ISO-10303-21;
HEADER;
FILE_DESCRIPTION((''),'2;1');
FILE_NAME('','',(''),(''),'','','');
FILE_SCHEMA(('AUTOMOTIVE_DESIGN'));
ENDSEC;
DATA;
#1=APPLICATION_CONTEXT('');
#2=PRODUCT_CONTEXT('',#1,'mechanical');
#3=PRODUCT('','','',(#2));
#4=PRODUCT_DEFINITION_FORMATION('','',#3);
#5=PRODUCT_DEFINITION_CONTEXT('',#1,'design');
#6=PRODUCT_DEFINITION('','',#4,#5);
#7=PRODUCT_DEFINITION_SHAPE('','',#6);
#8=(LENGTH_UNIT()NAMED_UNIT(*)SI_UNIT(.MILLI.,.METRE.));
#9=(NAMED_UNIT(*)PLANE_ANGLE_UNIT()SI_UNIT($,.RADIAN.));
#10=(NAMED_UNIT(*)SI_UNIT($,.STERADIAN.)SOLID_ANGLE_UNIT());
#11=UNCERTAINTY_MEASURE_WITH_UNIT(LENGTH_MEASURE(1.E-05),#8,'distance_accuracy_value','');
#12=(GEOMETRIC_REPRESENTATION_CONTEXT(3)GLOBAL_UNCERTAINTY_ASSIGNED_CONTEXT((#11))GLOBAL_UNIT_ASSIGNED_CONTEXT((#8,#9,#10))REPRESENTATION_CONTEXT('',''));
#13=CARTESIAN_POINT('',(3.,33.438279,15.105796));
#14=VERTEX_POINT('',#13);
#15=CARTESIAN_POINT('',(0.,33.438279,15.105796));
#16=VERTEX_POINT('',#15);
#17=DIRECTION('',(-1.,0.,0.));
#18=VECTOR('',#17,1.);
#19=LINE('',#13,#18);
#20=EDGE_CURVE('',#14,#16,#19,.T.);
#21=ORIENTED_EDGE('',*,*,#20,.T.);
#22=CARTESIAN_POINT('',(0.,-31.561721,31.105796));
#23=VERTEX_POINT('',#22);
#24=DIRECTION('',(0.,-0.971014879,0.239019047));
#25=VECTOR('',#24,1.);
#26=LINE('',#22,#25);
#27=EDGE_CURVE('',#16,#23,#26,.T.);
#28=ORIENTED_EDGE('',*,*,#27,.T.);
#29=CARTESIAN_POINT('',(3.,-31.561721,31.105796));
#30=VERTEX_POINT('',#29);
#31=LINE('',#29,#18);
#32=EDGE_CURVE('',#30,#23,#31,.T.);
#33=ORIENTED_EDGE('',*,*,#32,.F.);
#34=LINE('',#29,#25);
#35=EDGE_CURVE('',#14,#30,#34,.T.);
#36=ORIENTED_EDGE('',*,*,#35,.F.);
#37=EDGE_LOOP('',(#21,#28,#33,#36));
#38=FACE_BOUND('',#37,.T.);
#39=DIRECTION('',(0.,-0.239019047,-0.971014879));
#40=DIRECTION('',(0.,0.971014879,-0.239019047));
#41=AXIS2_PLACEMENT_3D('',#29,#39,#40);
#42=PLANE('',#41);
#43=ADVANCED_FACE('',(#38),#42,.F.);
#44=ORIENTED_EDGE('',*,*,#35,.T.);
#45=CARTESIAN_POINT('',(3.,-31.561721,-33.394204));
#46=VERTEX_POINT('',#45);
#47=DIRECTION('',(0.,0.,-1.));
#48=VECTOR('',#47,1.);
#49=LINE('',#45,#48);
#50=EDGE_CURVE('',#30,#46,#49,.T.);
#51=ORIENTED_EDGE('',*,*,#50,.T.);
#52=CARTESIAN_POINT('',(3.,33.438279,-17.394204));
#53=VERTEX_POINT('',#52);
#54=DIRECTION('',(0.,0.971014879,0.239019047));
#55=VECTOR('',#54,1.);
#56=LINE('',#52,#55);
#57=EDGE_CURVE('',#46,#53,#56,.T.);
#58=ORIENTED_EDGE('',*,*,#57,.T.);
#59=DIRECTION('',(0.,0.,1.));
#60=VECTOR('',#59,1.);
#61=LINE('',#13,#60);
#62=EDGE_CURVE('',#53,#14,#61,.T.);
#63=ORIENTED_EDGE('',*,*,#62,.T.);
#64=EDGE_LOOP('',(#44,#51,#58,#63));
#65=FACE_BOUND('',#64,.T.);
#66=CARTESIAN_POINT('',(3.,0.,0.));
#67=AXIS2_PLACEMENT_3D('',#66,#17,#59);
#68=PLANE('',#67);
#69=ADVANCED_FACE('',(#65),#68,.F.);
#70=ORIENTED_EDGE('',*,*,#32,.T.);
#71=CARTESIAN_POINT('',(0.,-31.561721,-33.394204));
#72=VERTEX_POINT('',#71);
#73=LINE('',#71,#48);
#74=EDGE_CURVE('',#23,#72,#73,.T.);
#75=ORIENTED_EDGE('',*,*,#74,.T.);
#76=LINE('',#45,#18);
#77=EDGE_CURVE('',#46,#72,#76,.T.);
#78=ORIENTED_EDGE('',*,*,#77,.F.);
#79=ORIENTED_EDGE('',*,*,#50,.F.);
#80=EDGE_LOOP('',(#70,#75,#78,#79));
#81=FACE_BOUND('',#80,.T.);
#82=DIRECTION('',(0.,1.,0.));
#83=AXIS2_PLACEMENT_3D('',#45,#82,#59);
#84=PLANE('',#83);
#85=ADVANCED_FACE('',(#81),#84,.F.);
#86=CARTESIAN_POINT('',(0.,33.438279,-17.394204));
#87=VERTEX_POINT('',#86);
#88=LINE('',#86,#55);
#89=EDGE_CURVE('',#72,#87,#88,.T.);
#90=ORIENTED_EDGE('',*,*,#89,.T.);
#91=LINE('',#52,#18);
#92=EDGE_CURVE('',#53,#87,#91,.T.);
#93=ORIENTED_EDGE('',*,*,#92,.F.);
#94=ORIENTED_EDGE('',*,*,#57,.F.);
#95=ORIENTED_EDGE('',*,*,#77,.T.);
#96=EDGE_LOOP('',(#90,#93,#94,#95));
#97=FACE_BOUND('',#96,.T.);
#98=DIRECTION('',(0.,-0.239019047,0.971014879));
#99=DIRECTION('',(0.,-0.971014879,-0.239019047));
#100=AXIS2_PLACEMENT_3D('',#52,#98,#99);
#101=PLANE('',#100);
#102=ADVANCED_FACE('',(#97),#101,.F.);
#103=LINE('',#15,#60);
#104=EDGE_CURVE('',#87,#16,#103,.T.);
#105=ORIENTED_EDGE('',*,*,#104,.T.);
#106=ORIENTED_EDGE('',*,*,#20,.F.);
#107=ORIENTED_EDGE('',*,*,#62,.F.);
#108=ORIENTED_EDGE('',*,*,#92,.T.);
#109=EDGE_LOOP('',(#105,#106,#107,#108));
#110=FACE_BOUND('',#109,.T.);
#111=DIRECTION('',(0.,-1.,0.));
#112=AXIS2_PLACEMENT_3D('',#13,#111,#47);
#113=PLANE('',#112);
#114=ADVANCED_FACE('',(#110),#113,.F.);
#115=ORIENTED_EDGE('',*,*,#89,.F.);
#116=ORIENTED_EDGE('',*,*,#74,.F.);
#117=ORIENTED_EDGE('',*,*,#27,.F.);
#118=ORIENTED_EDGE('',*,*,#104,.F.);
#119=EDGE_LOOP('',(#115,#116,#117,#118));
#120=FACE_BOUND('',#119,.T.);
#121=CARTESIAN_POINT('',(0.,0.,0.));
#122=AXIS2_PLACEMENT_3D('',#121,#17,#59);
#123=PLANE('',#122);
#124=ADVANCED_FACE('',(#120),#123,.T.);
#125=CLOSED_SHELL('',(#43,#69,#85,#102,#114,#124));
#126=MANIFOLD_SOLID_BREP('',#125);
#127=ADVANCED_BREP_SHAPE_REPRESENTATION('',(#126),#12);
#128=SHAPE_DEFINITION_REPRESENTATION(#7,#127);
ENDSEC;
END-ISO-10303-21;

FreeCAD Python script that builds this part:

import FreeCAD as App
import Part
import Sketcher

doc = App.newDocument("Part")
body = doc.addObject("PartDesign::Body", "Body")

# Sketch on YZ plane
sketch1 = body.newObject("Sketcher::SketchObject", "Sketch")
sketch1.AttachmentSupport = (doc.getObject("YZ_Plane"), [""])
sketch1.MapMode = "FlatFace"
sketch1.addGeometry(Part.LineSegment(App.Vector(33, -17, 0), App.Vector(33, 15, 0)), False)
sketch1.addGeometry(Part.LineSegment(App.Vector(33, 15, 0), App.Vector(-32, 31, 0)), False)
sketch1.addGeometry(Part.LineSegment(App.Vector(-32, 31, 0), App.Vector(-32, -33, 0)), False)
sketch1.addGeometry(Part.LineSegment(App.Vector(-32, -33, 0), App.Vector(33, -17, 0)), False)
sketch1.addConstraint(Sketcher.Constraint("Coincident", 0, 2, 1, 1))
sketch1.addConstraint(Sketcher.Constraint("Coincident", 1, 2, 2, 1))
sketch1.addConstraint(Sketcher.Constraint("Coincident", 2, 2, 3, 1))
sketch1.addConstraint(Sketcher.Constraint("Coincident", 3, 2, 0, 1))
sketch1.addConstraint(Sketcher.Constraint("Vertical", 0))
sketch1.addConstraint(Sketcher.Constraint("Vertical", 2))
sketch1.addConstraint(Sketcher.Constraint("Equal", 1, 3))
sketch1.addConstraint(Sketcher.Constraint("DistanceY", 0, 1, 0, 2, 32.5))
sketch1.addConstraint(Sketcher.Constraint("DistanceY", 2, 2, 2, 1, 64.5))
sketch1.addConstraint(Sketcher.Constraint("DistanceX", 1, 2, 0, 2, 65.0))
sketch1.addConstraint(Sketcher.Constraint("DistanceX", -1, 1, 0, 2, 33.438279))
sketch1.addConstraint(Sketcher.Constraint("DistanceY", -1, 1, 0, 2, 15.105796))
pad1 = body.newObject("PartDesign::Pad", "Pad")
pad1.Profile = sketch1
pad1.Length = 3

doc.recompute()
